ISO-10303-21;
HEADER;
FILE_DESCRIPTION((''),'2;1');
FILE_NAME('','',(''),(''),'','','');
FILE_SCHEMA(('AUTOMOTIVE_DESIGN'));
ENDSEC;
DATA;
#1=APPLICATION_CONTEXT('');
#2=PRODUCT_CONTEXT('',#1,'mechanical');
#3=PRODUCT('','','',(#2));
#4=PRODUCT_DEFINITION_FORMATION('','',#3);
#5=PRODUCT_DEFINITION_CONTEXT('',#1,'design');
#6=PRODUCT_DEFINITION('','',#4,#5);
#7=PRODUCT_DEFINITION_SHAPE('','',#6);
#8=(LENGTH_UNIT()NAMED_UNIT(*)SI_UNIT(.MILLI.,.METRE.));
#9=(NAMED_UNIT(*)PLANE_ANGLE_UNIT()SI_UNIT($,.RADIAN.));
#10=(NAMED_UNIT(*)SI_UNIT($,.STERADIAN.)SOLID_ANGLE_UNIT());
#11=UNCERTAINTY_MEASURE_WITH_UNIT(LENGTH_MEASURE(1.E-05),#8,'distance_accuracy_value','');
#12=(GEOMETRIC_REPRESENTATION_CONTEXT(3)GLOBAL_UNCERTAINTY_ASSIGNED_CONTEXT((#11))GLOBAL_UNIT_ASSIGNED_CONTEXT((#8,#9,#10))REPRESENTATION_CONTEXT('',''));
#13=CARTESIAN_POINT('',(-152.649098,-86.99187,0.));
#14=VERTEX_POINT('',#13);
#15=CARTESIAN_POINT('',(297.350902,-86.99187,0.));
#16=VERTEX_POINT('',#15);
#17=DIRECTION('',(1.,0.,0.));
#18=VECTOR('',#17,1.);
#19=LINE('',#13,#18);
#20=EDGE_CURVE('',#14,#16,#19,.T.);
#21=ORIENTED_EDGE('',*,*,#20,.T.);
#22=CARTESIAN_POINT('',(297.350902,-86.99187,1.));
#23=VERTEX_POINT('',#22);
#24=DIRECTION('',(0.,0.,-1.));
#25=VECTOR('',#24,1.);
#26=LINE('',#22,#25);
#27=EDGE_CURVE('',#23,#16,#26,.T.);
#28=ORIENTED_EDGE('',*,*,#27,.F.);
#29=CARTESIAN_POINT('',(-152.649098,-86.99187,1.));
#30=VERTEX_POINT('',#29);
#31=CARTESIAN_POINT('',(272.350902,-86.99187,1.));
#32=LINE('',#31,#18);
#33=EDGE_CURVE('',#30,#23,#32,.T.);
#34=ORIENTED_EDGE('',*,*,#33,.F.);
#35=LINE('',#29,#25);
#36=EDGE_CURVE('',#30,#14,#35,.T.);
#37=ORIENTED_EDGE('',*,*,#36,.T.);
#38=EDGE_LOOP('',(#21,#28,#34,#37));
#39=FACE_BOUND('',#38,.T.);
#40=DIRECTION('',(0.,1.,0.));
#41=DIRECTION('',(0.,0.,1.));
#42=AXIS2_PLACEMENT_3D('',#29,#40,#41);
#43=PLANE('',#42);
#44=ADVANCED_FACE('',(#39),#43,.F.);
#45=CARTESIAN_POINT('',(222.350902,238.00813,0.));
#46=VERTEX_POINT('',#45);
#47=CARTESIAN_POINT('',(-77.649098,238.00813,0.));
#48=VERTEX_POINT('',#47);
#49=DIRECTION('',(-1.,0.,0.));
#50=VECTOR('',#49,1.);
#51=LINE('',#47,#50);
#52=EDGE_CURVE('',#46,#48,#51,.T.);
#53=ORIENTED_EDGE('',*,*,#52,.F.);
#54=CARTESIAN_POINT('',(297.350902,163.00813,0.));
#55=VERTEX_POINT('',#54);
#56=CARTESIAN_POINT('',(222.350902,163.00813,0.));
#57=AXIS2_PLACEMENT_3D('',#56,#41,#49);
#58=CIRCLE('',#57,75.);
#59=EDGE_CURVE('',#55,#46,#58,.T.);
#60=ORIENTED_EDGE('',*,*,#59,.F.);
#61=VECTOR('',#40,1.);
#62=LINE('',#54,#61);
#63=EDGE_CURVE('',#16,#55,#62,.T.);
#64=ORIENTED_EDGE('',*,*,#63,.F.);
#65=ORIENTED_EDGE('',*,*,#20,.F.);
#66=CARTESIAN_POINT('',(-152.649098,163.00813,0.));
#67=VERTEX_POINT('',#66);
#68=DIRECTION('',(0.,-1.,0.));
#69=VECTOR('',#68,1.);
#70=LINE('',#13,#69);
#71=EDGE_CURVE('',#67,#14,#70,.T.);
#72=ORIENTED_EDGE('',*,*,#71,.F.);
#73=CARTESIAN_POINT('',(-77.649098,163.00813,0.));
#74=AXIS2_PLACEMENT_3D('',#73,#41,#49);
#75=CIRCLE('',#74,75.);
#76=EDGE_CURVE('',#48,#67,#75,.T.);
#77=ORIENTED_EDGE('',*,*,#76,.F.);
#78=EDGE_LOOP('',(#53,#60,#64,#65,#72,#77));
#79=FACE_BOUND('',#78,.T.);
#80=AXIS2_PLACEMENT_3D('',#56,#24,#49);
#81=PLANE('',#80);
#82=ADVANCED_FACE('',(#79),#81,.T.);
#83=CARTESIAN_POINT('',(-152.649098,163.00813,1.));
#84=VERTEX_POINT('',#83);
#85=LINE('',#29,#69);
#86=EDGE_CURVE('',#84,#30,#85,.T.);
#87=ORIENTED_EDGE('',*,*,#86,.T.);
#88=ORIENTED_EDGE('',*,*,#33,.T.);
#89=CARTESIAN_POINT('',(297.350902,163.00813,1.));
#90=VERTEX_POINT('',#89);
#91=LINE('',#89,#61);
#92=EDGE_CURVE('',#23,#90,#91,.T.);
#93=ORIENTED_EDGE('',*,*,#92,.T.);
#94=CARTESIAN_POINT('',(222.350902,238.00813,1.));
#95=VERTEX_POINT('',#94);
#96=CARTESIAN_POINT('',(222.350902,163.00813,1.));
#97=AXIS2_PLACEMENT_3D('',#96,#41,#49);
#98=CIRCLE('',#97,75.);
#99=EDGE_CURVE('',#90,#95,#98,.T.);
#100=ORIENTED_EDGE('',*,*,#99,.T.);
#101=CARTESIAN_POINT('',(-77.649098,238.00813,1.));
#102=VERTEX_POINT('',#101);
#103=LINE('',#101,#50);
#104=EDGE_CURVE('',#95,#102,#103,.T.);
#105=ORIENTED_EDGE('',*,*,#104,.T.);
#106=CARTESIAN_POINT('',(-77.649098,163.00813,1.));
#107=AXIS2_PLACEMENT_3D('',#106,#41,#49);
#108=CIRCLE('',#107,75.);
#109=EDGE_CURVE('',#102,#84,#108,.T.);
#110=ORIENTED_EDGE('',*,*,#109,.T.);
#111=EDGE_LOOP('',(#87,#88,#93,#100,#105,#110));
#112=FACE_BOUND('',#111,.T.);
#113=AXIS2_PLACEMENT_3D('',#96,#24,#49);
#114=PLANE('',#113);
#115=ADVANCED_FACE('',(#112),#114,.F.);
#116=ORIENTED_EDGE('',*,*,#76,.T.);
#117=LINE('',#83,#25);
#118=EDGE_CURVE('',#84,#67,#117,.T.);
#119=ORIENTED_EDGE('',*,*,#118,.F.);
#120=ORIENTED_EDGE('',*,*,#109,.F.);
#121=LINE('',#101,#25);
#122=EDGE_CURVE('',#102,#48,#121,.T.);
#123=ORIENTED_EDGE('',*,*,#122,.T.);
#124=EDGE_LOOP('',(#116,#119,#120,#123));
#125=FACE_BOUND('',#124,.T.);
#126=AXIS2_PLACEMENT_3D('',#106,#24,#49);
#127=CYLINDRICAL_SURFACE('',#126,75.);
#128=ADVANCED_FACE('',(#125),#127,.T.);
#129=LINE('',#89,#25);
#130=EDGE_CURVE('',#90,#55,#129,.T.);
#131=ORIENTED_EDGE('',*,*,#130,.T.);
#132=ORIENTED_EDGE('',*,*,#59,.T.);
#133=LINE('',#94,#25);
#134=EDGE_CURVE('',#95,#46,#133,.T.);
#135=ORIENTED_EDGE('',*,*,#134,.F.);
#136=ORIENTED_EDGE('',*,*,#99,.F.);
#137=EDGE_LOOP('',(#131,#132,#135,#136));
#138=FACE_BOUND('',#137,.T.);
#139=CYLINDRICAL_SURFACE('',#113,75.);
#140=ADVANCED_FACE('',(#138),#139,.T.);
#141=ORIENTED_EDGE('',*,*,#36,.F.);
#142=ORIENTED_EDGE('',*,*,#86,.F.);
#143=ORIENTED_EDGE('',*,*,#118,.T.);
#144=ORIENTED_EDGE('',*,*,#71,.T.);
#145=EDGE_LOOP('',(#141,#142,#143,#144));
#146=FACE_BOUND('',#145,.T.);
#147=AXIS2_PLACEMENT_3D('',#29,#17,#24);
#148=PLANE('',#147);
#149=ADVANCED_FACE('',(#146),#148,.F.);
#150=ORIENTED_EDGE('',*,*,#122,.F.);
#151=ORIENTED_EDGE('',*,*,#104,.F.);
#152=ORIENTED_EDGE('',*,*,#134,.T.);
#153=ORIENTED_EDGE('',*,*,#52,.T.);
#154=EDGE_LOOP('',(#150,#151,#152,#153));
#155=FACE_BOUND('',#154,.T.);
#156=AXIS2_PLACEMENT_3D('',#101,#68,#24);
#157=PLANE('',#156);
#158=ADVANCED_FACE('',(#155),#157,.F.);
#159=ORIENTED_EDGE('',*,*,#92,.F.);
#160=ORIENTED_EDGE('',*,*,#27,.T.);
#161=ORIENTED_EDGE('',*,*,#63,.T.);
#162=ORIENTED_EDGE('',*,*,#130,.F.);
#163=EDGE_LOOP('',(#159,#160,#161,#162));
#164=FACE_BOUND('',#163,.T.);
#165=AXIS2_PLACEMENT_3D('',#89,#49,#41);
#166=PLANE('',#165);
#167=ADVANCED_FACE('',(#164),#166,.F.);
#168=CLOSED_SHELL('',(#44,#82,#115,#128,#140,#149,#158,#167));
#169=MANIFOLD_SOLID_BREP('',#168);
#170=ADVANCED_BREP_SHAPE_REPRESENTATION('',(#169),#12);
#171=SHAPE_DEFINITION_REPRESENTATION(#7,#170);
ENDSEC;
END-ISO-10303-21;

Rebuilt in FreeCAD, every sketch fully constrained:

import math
import FreeCAD as App
import Part
import Sketcher

V = App.Vector
Q = App.Units.Quantity

doc = App.newDocument("Part")
body = doc.addObject("PartDesign::Body", "Body")

sketch1 = doc.addObject("Sketcher::SketchObject", "Sketch")
body.addObject(sketch1)
sketch1.AttachmentSupport = (doc.XY_Plane, [""])
sketch1.MapMode = "FlatFace"
sketch1.addGeometry([
    Part.LineSegment(V(-153, 163, 0), V(-153, -87, 0)),
    Part.LineSegment(V(-153, -87, 0), V(297, -87, 0)),
    Part.LineSegment(V(297, -87, 0), V(297, 163, 0)),
    Part.ArcOfCircle(Part.Circle(V(222, 163, 0), V(0, 0, 1), 75), math.radians(0), math.radians(90)),
    Part.LineSegment(V(222, 238, 0), V(-78, 238, 0)),
    Part.ArcOfCircle(Part.Circle(V(-78, 163, 0), V(0, 0, 1), 75), math.radians(90), math.radians(180)),
], False)
sketch1.addConstraint([
    Sketcher.Constraint("Coincident", 0, 2, 1, 1),
    Sketcher.Constraint("Coincident", 1, 2, 2, 1),
    Sketcher.Constraint("Tangent", 2, 2, 3, 1),
    Sketcher.Constraint("Tangent", 3, 2, 4, 1),
    Sketcher.Constraint("Tangent", 4, 2, 5, 1),
    Sketcher.Constraint("Tangent", 5, 2, 0, 1),
    Sketcher.Constraint("Vertical", 0),
    Sketcher.Constraint("Horizontal", 1),
    Sketcher.Constraint("Vertical", 2),
    Sketcher.Constraint("Horizontal", 4),
    Sketcher.Constraint("Equal", 3, 5),
    Sketcher.Constraint("Radius", 3, Q("75 mm")),
    Sketcher.Constraint("DistanceX", 1, 1, 1, 2, Q("450 mm")),
    Sketcher.Constraint("DistanceY", 0, 2, 0, 1, Q("250 mm")),
    Sketcher.Constraint("DistanceX", -1, 1, 3, 3, Q("222.350902 mm")),
    Sketcher.Constraint("DistanceY", -1, 1, 3, 3, Q("163.00813 mm")),
])
pad1 = doc.addObject("PartDesign::Pad", "Pad")
body.addObject(pad1)
pad1.Profile = sketch1
pad1.Length = 1

doc.recompute()
